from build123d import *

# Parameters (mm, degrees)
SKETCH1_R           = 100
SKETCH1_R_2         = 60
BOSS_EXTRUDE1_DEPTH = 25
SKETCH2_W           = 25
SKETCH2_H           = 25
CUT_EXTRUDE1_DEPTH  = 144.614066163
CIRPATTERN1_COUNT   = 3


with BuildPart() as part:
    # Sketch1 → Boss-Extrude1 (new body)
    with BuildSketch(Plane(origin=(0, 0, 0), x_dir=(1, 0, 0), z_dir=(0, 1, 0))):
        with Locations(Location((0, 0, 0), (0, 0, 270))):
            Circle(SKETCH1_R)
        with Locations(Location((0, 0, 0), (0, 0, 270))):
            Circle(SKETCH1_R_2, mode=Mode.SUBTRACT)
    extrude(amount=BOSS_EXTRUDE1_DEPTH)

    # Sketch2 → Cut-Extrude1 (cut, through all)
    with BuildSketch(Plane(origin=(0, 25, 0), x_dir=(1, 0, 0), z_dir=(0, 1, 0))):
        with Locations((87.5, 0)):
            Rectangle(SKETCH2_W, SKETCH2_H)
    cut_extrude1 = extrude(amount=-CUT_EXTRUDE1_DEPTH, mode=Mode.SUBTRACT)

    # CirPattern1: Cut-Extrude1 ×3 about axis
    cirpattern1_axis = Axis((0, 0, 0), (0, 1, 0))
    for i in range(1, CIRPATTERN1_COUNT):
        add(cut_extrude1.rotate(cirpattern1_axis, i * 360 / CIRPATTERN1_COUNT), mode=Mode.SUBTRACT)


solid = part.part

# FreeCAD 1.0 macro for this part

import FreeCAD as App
import Part
import Sketcher

doc = App.newDocument("Part")
body = doc.addObject("PartDesign::Body", "Body")

sketch1 = body.newObject("Sketcher::SketchObject", "Sketch")
sketch1.AttachmentSupport = (doc.getObject("XZ_Plane"), [""])
sketch1.MapMode = "FlatFace"
sketch1.addGeometry(Part.Circle(App.Vector(0, 0, 0), App.Vector(0, 0, 1), 100), False)
sketch1.addGeometry(Part.Circle(App.Vector(0, 0, 0), App.Vector(0, 0, 1), 60), False)
sketch1.addConstraint(Sketcher.Constraint("Coincident", 0, 3, -1, 1))
sketch1.addConstraint(Sketcher.Constraint("Coincident", 1, 3, -1, 1))
sketch1.addConstraint(Sketcher.Constraint("Diameter", 0, 200.0))
sketch1.addConstraint(Sketcher.Constraint("Diameter", 1, 120.0))
pad1 = body.newObject("PartDesign::Pad", "Pad")
pad1.Profile = sketch1
pad1.Length = 25
pad1.Reversed = True

sketch2 = body.newObject("Sketcher::SketchObject", "Sketch001")
sketch2.AttachmentSupport = (doc.getObject("XZ_Plane"), [""])
sketch2.MapMode = "FlatFace"
sketch2.AttachmentOffset = App.Placement(App.Vector(0, 0, -25), App.Rotation())
sketch2.addGeometry(Part.LineSegment(App.Vector(75, -12, 0), App.Vector(75, 12, 0)), False)
sketch2.addGeometry(Part.LineSegment(App.Vector(75, 12, 0), App.Vector(100, 12, 0)), False)
sketch2.addGeometry(Part.LineSegment(App.Vector(100, 12, 0), App.Vector(100, -12, 0)), False)
sketch2.addGeometry(Part.LineSegment(App.Vector(100, -12, 0), App.Vector(75, -12, 0)), False)
sketch2.addConstraint(Sketcher.Constraint("Coincident", 0, 2, 1, 1))
sketch2.addConstraint(Sketcher.Constraint("Coincident", 1, 2, 2, 1))
sketch2.addConstraint(Sketcher.Constraint("Coincident", 2, 2, 3, 1))
sketch2.addConstraint(Sketcher.Constraint("Coincident", 3, 2, 0, 1))
sketch2.addConstraint(Sketcher.Constraint("Vertical", 0))
sketch2.addConstraint(Sketcher.Constraint("Horizontal", 1))
sketch2.addConstraint(Sketcher.Constraint("Vertical", 2))
sketch2.addConstraint(Sketcher.Constraint("Horizontal", 3))
sketch2.addConstraint(Sketcher.Constraint("Equal", 3, 0))
sketch2.addConstraint(Sketcher.Constraint("DistanceX", 1, 1, 1, 2, 25.0))
sketch2.addConstraint(Sketcher.Constraint("DistanceX", -1, 1, 0, 2, 75.0))
sketch2.addConstraint(Sketcher.Constraint("DistanceY", -1, 1, 0, 2, 12.5))
pocket1 = body.newObject("PartDesign::Pocket", "Pocket")
pocket1.Profile = sketch2
pocket1.Type = "ThroughAll"
pocket1.Reversed = True
doc.recompute()

polarpattern = body.newObject("PartDesign::PolarPattern", "PolarPattern")
polarpattern.Originals = [pocket1]
polarpattern.Axis = (doc.getObject("Y_Axis"), [""])
polarpattern.Angle = 360
polarpattern.Occurrences = 3
body.Tip = polarpattern

doc.recompute()
